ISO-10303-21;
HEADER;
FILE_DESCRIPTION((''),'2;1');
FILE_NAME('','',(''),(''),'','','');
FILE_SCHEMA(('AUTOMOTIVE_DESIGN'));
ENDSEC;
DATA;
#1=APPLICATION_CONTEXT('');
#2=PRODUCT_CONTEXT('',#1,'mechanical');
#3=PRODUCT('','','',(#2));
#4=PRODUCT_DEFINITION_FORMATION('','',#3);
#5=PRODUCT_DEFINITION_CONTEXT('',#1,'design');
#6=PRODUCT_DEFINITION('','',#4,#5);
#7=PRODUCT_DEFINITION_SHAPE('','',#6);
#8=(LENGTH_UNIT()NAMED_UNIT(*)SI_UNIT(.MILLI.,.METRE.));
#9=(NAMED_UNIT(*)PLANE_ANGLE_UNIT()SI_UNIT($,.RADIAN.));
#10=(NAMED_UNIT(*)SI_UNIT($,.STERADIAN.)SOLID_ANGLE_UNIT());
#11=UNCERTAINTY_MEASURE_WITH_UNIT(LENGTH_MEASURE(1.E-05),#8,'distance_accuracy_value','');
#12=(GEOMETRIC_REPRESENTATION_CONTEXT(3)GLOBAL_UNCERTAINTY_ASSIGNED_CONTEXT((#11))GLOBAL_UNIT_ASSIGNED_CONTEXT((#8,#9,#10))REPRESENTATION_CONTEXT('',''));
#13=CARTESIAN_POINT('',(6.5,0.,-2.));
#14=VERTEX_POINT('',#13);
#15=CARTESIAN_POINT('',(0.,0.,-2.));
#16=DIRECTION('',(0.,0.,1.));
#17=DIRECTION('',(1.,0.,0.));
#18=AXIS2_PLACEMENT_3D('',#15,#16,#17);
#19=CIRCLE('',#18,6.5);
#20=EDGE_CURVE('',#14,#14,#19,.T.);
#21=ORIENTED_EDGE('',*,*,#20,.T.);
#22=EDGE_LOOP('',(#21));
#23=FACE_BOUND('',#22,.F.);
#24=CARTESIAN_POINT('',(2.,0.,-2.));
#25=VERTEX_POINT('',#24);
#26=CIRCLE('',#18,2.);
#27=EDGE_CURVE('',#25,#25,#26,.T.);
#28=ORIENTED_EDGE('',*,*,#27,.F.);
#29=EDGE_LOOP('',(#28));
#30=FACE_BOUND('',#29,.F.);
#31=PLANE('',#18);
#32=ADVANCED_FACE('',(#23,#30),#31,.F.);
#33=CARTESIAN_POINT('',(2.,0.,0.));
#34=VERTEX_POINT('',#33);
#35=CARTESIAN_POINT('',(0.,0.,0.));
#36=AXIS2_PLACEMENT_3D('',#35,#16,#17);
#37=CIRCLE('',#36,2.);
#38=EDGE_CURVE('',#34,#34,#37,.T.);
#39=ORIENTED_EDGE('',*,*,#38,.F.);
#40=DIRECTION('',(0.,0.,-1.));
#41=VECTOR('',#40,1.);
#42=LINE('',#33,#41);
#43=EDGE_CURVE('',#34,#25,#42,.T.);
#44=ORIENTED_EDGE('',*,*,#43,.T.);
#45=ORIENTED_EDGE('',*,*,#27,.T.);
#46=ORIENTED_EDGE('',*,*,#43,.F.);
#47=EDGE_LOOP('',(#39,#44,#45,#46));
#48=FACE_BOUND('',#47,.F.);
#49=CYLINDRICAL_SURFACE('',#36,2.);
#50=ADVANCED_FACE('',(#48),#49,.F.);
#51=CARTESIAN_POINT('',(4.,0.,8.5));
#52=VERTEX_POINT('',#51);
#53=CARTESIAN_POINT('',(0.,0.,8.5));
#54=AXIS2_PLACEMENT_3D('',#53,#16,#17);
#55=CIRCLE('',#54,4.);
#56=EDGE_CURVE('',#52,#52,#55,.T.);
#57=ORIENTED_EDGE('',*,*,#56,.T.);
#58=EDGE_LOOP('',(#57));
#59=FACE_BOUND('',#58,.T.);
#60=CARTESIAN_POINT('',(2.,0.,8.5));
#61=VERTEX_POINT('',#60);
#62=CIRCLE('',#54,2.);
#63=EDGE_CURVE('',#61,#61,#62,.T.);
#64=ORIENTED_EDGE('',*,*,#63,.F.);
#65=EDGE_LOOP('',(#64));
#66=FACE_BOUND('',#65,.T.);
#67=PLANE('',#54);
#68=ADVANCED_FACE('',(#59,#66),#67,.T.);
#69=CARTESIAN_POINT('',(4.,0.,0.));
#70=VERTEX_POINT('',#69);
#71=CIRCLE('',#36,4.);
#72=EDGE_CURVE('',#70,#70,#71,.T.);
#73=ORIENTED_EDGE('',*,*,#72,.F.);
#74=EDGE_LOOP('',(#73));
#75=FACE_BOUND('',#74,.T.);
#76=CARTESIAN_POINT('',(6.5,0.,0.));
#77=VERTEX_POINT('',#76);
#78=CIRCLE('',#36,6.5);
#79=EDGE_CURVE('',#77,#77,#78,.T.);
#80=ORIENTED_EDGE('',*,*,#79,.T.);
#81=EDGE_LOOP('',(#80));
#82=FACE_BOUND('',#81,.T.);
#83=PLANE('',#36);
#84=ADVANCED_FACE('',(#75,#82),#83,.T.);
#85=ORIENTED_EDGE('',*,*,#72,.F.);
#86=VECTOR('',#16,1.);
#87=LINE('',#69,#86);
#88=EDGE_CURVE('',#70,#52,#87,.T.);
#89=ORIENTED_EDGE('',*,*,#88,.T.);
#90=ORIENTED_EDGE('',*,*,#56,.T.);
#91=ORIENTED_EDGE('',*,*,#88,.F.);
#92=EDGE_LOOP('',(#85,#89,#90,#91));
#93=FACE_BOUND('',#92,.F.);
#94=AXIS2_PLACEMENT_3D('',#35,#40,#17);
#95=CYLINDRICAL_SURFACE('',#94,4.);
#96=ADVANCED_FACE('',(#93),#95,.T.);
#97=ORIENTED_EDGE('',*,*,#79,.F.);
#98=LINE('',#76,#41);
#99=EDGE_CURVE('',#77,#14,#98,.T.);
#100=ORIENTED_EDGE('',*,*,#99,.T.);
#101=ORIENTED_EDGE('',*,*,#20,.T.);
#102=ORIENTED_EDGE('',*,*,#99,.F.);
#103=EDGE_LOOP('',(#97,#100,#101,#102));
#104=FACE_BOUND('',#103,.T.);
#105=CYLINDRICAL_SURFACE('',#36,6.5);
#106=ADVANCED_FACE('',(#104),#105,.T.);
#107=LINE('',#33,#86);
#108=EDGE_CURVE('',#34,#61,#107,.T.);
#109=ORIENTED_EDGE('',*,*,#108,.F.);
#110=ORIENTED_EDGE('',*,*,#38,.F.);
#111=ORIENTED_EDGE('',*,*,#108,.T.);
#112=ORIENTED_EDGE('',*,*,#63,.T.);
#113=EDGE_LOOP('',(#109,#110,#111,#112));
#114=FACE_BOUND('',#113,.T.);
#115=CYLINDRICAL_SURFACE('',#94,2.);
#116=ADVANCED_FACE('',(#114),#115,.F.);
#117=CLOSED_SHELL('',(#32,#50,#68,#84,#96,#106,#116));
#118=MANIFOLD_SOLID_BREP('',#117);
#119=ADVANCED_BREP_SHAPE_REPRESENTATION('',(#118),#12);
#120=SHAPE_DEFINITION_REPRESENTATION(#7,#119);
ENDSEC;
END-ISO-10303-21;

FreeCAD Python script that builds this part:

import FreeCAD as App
import Part
import Sketcher

doc = App.newDocument("Part")
params = doc.addObject("Spreadsheet::Sheet", "Params")
for row, (alias, value) in enumerate([
    ("sketch1_diameter", "8 mm"),
    ("sketch1_diameter2", "4 mm"),
    ("pad1_length", "8.5 mm"),
    ("sketch2_diameter", "13 mm"),
    ("pad2_length", "2 mm"),
    ("sketch3_diameter", "4 mm"),
    ("pocket1_length", "3 mm"),
], start=1):
    params.set(f"A{row}", alias)
    params.set(f"B{row}", "=" + value)
    params.setAlias(f"B{row}", alias)

body = doc.addObject("PartDesign::Body", "Body")

# Sketch on XY plane
sketch1 = body.newObject("Sketcher::SketchObject", "Sketch")
sketch1.AttachmentSupport = (doc.getObject("XY_Plane"), [""])
sketch1.MapMode = "FlatFace"
sketch1.addGeometry([
    Part.Circle(App.Vector(0, 0, 0), App.Vector(0, 0, 1), 4),
    Part.Circle(App.Vector(0, 0, 0), App.Vector(0, 0, 1), 2),
], False)
sketch1.addConstraint([
    Sketcher.Constraint("Coincident", 0, 3, -1, 1),
    Sketcher.Constraint("Coincident", 1, 3, -1, 1),
    Sketcher.Constraint("Diameter", 0, 8.0),
    Sketcher.Constraint("Diameter", 1, 4.0),
])
sketch1.setExpression("Constraints[2]", "Params.sketch1_diameter")
sketch1.setExpression("Constraints[3]", "Params.sketch1_diameter2")
pad1 = body.newObject("PartDesign::Pad", "Pad")
pad1.Profile = sketch1
pad1.setExpression("Length", "Params.pad1_length")

# Sketch on XY plane
sketch2 = body.newObject("Sketcher::SketchObject", "Sketch001")
sketch2.AttachmentSupport = (doc.getObject("XY_Plane"), [""])
sketch2.MapMode = "FlatFace"
sketch2.addGeometry(Part.Circle(App.Vector(0, 0, 0), App.Vector(0, 0, 1), 6), False)
sketch2.addConstraint([
    Sketcher.Constraint("Coincident", 0, 3, -1, 1),
    Sketcher.Constraint("Diameter", 0, 13.0),
])
sketch2.setExpression("Constraints[1]", "Params.sketch2_diameter")
pad2 = body.newObject("PartDesign::Pad", "Pad001")
pad2.Profile = sketch2
pad2.setExpression("Length", "Params.pad2_length")
pad2.Reversed = True

# Sketch on XY plane
sketch3 = body.newObject("Sketcher::SketchObject", "Sketch002")
sketch3.AttachmentSupport = (doc.getObject("XY_Plane"), [""])
sketch3.MapMode = "FlatFace"
sketch3.addGeometry(Part.Circle(App.Vector(0, 0, 0), App.Vector(0, 0, 1), 2), False)
sketch3.addConstraint([
    Sketcher.Constraint("Coincident", 0, 3, -1, 1),
    Sketcher.Constraint("Diameter", 0, 4.0),
])
sketch3.setExpression("Constraints[1]", "Params.sketch3_diameter")
pocket1 = body.newObject("PartDesign::Pocket", "Pocket")
pocket1.Profile = sketch3
pocket1.setExpression("Length", "Params.pocket1_length")

doc.recompute()
